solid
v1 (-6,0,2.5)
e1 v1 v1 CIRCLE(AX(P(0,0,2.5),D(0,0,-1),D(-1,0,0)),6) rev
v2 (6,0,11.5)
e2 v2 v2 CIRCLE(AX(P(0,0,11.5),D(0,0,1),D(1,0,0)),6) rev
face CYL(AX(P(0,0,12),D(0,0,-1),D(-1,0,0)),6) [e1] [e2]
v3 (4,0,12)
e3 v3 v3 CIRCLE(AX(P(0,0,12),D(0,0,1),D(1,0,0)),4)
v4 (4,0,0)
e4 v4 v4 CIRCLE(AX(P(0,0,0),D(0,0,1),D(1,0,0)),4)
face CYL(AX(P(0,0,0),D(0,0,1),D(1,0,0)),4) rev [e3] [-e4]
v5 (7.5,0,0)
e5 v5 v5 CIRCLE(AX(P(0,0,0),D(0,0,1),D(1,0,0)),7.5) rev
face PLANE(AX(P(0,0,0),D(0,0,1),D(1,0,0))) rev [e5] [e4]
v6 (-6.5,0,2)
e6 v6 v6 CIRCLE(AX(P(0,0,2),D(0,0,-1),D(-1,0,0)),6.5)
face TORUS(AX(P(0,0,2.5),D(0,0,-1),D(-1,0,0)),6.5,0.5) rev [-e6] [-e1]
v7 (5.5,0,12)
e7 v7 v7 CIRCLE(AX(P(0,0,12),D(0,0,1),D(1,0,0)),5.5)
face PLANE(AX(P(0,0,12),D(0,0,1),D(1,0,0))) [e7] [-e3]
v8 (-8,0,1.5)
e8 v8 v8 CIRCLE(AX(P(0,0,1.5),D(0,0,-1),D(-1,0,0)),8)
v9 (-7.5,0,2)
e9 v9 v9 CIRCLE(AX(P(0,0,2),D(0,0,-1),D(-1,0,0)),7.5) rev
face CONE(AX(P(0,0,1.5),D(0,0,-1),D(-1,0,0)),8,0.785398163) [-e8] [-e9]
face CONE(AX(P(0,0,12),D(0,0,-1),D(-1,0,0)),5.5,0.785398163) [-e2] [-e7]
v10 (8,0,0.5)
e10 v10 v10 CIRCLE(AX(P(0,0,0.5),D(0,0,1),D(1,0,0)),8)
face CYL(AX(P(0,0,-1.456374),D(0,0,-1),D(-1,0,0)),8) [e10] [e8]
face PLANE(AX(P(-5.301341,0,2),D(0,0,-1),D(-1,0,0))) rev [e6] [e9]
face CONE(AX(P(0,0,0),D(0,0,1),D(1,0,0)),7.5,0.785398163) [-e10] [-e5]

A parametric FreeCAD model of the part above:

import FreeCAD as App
import Part
import Sketcher
from FreeCAD import Vector


def edges_at(feature, points):
    """Names of the edges that pass closest to the given points."""
    edges = feature.Shape.Edges
    near = lambda p: min(range(len(edges)), key=lambda i: edges[i].distToShape(Part.Vertex(*p))[0])
    return sorted({f"Edge{near(p) + 1}" for p in points})


def add_polygon(sketch, points):
    """Adds a closed chain of lines whose ends are joined by coincident constraints."""
    first, n = sketch.GeometryCount, len(points)
    for a, b in zip(points, points[1:] + points[:1]):
        sketch.addGeometry(Part.LineSegment(App.Vector(*a, 0), App.Vector(*b, 0)), False)
    for i in range(n):
        sketch.addConstraint(Sketcher.Constraint("Coincident", first + i, 2, first + (i + 1) % n, 1))

doc = App.newDocument("Part")
params = doc.addObject("Spreadsheet::Sheet", "Params")
for row, (alias, value) in enumerate([
    ("sketch1_diameter", "12 mm"),
    ("pad1_length", "12 mm"),
    ("sketch2_diameter", "8 mm"),
    ("sketch3_width", "4 mm"),
    ("sketch3_height", "2 mm"),
    ("revolution_angle", "360 deg"),
    ("chamfer_size", "0.5 mm"),
    ("fillet_radius", "0.5 mm"),
], start=1):
    params.set(f"A{row}", alias)
    params.set(f"B{row}", "=" + value)
    params.setAlias(f"B{row}", alias)

body = doc.addObject("PartDesign::Body", "Body")

# Sketch on XY plane
sketch1 = doc.addObject("Sketcher::SketchObject", "Sketch")
body.addObject(sketch1)
sketch1.AttachmentSupport = (doc.XY_Plane, [""])
sketch1.MapMode = "FlatFace"
sketch1.addGeometry(Part.Circle(Vector(0, 0, 0), Vector(0, 0, 1), 6), False)
sketch1.addConstraint(Sketcher.Constraint("Coincident", 0, 3, -1, 1))
sketch1.addConstraint(Sketcher.Constraint("Diameter", 0, 12.0))
sketch1.setExpression("Constraints[1]", "Params.sketch1_diameter")
pad1 = doc.addObject("PartDesign::Pad", "Pad")
body.addObject(pad1)
pad1.Profile = sketch1
pad1.setExpression("Length", "Params.pad1_length")

# Sketch on XY plane
sketch2 = doc.addObject("Sketcher::SketchObject", "Sketch001")
body.addObject(sketch2)
sketch2.AttachmentSupport = (doc.XY_Plane, [""])
sketch2.MapMode = "FlatFace"
sketch2.AttachmentOffset = App.Placement(Vector(0, 0, 12), App.Rotation())
sketch2.addGeometry(Part.Circle(Vector(0, 0, 0), Vector(0, 0, 1), 4), False)
sketch2.addConstraint(Sketcher.Constraint("Coincident", 0, 3, -1, 1))
sketch2.addConstraint(Sketcher.Constraint("Diameter", 0, 8.0))
sketch2.setExpression("Constraints[1]", "Params.sketch2_diameter")
pocket1 = doc.addObject("PartDesign::Pocket", "Pocket")
body.addObject(pocket1)
pocket1.Profile = sketch2
pocket1.Type = "ThroughAll"

# Sketch on XZ plane
sketch3 = doc.addObject("Sketcher::SketchObject", "Sketch002")
body.addObject(sketch3)
sketch3.AttachmentSupport = (doc.XZ_Plane, [""])
sketch3.MapMode = "FlatFace"
add_polygon(sketch3, [(4, 0), (4, 2), (8, 2), (8, 0)])  # lines 0-3
sketch3.addConstraint(Sketcher.Constraint("Vertical", 0))
sketch3.addConstraint(Sketcher.Constraint("Horizontal", 1))
sketch3.addConstraint(Sketcher.Constraint("Vertical", 2))
sketch3.addConstraint(Sketcher.Constraint("Horizontal", 3))
sketch3.addConstraint(Sketcher.Constraint("PointOnObject", 2, 2, -1))
sketch3.addConstraint(Sketcher.Constraint("DistanceX", 1, 1, 1, 2, 4.0))
sketch3.addConstraint(Sketcher.Constraint("DistanceY", 0, 1, 0, 2, 2.0))
sketch3.addConstraint(Sketcher.Constraint("DistanceX", -1, 1, 0, 2, 4.0))
sketch3.setExpression("Constraints[9]", "Params.sketch3_width")
sketch3.setExpression("Constraints[10]", "Params.sketch3_height")
revolution = doc.addObject("PartDesign::Revolution", "Revolution")
body.addObject(revolution)
revolution.Profile = sketch3
revolution.ReferenceAxis = (sketch3, ["V_Axis"])
revolution.setExpression("Angle", "Params.revolution_angle")
doc.recompute()

chamfer = doc.addObject("PartDesign::Chamfer", "Chamfer")
body.addObject(chamfer)
chamfer.Base = (revolution, edges_at(revolution, [(8, 0, 0), (8, 0, 2), (-6, 0, 12)]))
chamfer.setExpression("Size", "Params.chamfer_size")
doc.recompute()

fillet = doc.addObject("PartDesign::Fillet", "Fillet")
body.addObject(fillet)
fillet.Base = (chamfer, edges_at(chamfer, [(-6, 0, 2)]))
fillet.setExpression("Radius", "Params.fillet_radius")

doc.recompute()
